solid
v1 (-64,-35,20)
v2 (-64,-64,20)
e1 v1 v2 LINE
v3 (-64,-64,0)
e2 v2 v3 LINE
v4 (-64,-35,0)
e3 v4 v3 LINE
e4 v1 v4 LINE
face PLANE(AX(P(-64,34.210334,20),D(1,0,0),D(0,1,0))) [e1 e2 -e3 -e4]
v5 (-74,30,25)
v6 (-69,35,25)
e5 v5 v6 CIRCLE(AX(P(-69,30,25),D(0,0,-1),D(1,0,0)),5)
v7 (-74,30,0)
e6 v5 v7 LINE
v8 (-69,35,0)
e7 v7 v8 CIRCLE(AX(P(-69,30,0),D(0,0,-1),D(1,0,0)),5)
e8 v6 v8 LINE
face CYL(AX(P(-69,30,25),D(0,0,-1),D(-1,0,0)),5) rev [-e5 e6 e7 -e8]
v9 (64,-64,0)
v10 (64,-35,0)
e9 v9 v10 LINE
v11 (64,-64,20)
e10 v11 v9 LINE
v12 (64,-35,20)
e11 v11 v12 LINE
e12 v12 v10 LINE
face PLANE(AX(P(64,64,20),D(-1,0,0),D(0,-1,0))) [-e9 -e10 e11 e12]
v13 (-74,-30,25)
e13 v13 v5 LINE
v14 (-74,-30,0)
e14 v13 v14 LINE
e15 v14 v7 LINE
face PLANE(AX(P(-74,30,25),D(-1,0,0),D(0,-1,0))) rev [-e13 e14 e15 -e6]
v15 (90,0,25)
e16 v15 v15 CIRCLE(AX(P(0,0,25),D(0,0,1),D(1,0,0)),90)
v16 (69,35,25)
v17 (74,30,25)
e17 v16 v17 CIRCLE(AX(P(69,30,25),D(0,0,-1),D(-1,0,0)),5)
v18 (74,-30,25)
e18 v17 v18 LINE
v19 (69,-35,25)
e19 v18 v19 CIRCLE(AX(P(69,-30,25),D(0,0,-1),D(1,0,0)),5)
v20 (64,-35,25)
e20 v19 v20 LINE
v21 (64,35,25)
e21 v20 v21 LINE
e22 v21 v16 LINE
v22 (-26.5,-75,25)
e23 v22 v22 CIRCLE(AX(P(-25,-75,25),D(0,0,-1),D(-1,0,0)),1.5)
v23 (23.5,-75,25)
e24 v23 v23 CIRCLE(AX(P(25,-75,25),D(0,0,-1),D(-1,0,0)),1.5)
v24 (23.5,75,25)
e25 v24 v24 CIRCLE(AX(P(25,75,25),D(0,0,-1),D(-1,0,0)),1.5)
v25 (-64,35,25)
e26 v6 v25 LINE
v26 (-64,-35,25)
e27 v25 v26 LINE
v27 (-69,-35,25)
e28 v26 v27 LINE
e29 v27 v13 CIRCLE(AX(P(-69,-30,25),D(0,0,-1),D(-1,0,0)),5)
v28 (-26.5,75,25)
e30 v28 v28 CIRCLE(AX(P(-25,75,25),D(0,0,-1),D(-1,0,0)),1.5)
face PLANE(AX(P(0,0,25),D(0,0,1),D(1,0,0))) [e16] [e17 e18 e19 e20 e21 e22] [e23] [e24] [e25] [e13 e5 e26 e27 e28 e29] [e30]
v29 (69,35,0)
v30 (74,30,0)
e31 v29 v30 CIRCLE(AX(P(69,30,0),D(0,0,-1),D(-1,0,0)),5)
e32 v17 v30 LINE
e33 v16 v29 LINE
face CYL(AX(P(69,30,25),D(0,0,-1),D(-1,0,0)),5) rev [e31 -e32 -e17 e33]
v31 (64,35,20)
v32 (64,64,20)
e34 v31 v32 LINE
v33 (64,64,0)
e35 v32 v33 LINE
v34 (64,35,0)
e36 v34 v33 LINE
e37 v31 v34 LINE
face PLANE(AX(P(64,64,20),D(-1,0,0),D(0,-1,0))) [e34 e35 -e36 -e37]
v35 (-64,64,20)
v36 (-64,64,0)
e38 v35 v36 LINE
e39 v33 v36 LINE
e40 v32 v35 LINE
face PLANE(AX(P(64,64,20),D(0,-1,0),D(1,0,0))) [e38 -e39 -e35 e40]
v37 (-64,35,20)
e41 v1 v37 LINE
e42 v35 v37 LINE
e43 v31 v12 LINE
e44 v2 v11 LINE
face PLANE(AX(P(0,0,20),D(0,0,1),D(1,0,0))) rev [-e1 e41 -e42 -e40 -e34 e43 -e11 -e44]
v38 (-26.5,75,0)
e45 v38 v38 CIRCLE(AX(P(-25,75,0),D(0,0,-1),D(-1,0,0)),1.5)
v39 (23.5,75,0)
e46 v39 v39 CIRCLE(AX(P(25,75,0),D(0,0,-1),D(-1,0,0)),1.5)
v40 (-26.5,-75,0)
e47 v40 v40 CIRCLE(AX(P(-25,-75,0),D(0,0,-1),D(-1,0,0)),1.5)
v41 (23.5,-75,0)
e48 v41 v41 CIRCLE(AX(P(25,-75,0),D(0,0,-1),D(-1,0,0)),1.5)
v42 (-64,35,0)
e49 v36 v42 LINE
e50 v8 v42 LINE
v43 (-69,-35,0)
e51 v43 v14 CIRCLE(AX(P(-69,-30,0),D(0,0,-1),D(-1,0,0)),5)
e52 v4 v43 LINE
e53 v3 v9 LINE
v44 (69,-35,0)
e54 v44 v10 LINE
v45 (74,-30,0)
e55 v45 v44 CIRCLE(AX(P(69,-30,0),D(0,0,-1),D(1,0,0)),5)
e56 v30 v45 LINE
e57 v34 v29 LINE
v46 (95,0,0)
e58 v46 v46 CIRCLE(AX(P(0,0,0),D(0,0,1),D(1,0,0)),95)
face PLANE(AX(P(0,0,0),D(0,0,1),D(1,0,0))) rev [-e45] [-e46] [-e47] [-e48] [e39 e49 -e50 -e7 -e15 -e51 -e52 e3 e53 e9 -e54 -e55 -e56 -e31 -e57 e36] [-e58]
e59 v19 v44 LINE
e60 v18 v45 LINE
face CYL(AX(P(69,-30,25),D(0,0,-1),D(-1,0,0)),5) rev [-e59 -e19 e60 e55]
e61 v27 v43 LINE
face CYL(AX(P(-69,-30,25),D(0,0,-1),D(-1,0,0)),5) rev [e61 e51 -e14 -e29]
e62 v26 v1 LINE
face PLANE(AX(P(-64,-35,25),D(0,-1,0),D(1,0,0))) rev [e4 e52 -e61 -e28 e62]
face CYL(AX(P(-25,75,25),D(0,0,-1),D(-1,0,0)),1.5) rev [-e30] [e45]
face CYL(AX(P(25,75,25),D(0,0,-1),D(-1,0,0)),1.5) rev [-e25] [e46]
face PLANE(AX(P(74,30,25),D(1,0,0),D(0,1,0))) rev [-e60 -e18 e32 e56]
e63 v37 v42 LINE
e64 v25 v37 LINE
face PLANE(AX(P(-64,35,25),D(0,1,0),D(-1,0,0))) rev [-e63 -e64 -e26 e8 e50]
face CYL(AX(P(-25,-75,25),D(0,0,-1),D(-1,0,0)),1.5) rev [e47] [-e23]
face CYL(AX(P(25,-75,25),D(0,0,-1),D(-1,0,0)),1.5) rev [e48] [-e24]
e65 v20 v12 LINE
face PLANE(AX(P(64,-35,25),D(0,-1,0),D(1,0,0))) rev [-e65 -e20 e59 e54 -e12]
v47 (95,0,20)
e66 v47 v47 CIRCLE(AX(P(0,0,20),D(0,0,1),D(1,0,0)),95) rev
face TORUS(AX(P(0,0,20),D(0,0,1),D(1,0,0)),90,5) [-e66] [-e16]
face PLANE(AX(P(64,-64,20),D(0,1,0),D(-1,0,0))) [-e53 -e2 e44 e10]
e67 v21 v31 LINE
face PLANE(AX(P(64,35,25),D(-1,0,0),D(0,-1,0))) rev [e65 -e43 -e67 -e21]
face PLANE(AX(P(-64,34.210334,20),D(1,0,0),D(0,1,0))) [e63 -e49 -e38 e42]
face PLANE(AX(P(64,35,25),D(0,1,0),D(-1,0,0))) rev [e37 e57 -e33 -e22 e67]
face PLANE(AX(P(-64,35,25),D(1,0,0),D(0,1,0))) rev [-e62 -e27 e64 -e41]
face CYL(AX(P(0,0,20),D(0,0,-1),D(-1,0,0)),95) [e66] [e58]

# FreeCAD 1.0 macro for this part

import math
import FreeCAD as App
import Part
import Sketcher
Q = App.Units.Quantity


def edges_at(feature, points):
    """Names of the edges that pass closest to the given points."""
    edges = feature.Shape.Edges
    near = lambda p: min(range(len(edges)), key=lambda i: edges[i].distToShape(Part.Vertex(*p))[0])
    return sorted({f"Edge{near(p) + 1}" for p in points})


def add_polygon(sketch, points):
    """Adds a closed chain of lines whose ends are joined by coincident constraints."""
    first, n = sketch.GeometryCount, len(points)
    for a, b in zip(points, points[1:] + points[:1]):
        sketch.addGeometry(Part.LineSegment(App.Vector(*a, 0), App.Vector(*b, 0)), False)
    for i in range(n):
        sketch.addConstraint(Sketcher.Constraint("Coincident", first + i, 2, first + (i + 1) % n, 1))

doc = App.newDocument("Part")
params = doc.addObject("Spreadsheet::Sheet", "Params")
for row, (alias, value) in enumerate([
    ("sketch1_diameter", "190 mm"),
    ("sketch1_width", "128 mm"),
    ("pad1_length", "20 mm"),
    ("sketch2_diameter", "190 mm"),
    ("pad2_length", "5 mm"),
    ("fillet_radius", "5 mm"),
    ("sketch3_diameter", "3 mm"),
    ("sketch4_radius", "5 mm"),
    ("sketch4_width", "5 mm"),
    ("sketch4_height", "70 mm"),
], start=1):
    params.set(f"A{row}", alias)
    params.set(f"B{row}", "=" + value)
    params.setAlias(f"B{row}", alias)

body = doc.addObject("PartDesign::Body", "Body")

# Sketch on XY plane
sketch1 = doc.addObject("Sketcher::SketchObject", "Sketch")
body.addObject(sketch1)
sketch1.AttachmentSupport = (doc.XY_Plane, [""])
sketch1.MapMode = "FlatFace"
sketch1.addGeometry(Part.Circle(App.Vector(0, 0, 0), App.Vector(0, 0, 1), 95), False)  # 0
add_polygon(sketch1, [(-64, 64), (64, 64), (64, -64), (-64, -64)])  # lines 1-4
sketch1.addConstraint([
    Sketcher.Constraint("Horizontal", 1),
    Sketcher.Constraint("Vertical", 2),
    Sketcher.Constraint("Horizontal", 3),
    Sketcher.Constraint("Vertical", 4),
    Sketcher.Constraint("Coincident", 0, 3, -1, 1),
    Sketcher.Constraint("Symmetric", 1, 2, 3, 2, -1, 1),
    Sketcher.Constraint("Equal", 3, 2),
    Sketcher.Constraint("Diameter", 0, Q("190 mm")),
    Sketcher.Constraint("DistanceX", 1, 1, 1, 2, Q("128 mm")),
])
sketch1.setExpression("Constraints[11]", "Params.sketch1_diameter")
sketch1.setExpression("Constraints[12]", "Params.sketch1_width")
pad1 = doc.addObject("PartDesign::Pad", "Pad")
body.addObject(pad1)
pad1.Profile = sketch1
pad1.setExpression("Length", "Params.pad1_length")

# Sketch on XY plane
sketch2 = doc.addObject("Sketcher::SketchObject", "Sketch001")
body.addObject(sketch2)
sketch2.AttachmentSupport = (doc.XY_Plane, [""])
sketch2.MapMode = "FlatFace"
sketch2.AttachmentOffset = App.Placement(App.Vector(0, 0, 20), App.Rotation())
sketch2.addGeometry(Part.Circle(App.Vector(0, 0, 0), App.Vector(0, 0, 1), 95), False)
sketch2.addConstraint([
    Sketcher.Constraint("Coincident", 0, 3, -1, 1),
    Sketcher.Constraint("Diameter", 0, Q("190 mm")),
])
sketch2.setExpression("Constraints[1]", "Params.sketch2_diameter")
pad2 = doc.addObject("PartDesign::Pad", "Pad001")
body.addObject(pad2)
pad2.Profile = sketch2
pad2.setExpression("Length", "Params.pad2_length")
doc.recompute()

fillet = doc.addObject("PartDesign::Fillet", "Fillet")
body.addObject(fillet)
fillet.Base = (pad2, edges_at(pad2, [(-95, 0, 25)]))
fillet.setExpression("Radius", "Params.fillet_radius")

# Sketch on XY plane
sketch3 = doc.addObject("Sketcher::SketchObject", "Sketch002")
body.addObject(sketch3)
sketch3.AttachmentSupport = (doc.XY_Plane, [""])
sketch3.MapMode = "FlatFace"
sketch3.addGeometry([
    Part.Circle(App.Vector(25, 75, 0), App.Vector(0, 0, 1), 1.5),
    Part.Circle(App.Vector(-25, 75, 0), App.Vector(0, 0, 1), 1.5),
    Part.Circle(App.Vector(-25, -75, 0), App.Vector(0, 0, 1), 1.5),
    Part.Circle(App.Vector(25, -75, 0), App.Vector(0, 0, 1), 1.5),
], False)
sketch3.addConstraint([
    Sketcher.Constraint("Equal", 0, 1),
    Sketcher.Constraint("Equal", 1, 2),
    Sketcher.Constraint("Equal", 2, 3),
    Sketcher.Constraint("Symmetric", 0, 3, 2, 3, -1, 1),
    Sketcher.Constraint("Symmetric", 1, 3, 3, 3, -1, 1),
    Sketcher.Constraint("Symmetric", 0, 3, 1, 3, -2),
    Sketcher.Constraint("Diameter", 0, Q("3 mm")),
    Sketcher.Constraint("DistanceX", -1, 1, 0, 3, Q("25 mm")),
    Sketcher.Constraint("DistanceY", -1, 1, 0, 3, Q("75 mm")),
])
sketch3.setExpression("Constraints[6]", "Params.sketch3_diameter")
pocket1 = doc.addObject("PartDesign::Pocket", "Pocket")
body.addObject(pocket1)
pocket1.Profile = sketch3
pocket1.Type = "ThroughAll"
pocket1.Reversed = True

# Sketch on XY plane
sketch4 = doc.addObject("Sketcher::SketchObject", "Sketch003")
body.addObject(sketch4)
sketch4.AttachmentSupport = (doc.XY_Plane, [""])
sketch4.MapMode = "FlatFace"
sketch4.AttachmentOffset = App.Placement(App.Vector(0, 0, 20), App.Rotation())
sketch4.addGeometry([
    Part.LineSegment(App.Vector(64, -35, 0), App.Vector(64, 35, 0)),  # 0
    Part.LineSegment(App.Vector(64, 35, 0), App.Vector(69, 35, 0)),  # 1
    Part.ArcOfCircle(Part.Circle(App.Vector(69, 30, 0), App.Vector(0, 0, 1), 5), math.radians(0), math.radians(90)),  # 2
    Part.LineSegment(App.Vector(74, 30, 0), App.Vector(74, -30, 0)),  # 3
    Part.ArcOfCircle(Part.Circle(App.Vector(69, -30, 0), App.Vector(0, 0, 1), 5), math.radians(-90), math.radians(0)),  # 4
    Part.LineSegment(App.Vector(69, -35, 0), App.Vector(64, -35, 0)),  # 5
    Part.LineSegment(App.Vector(-64, -35, 0), App.Vector(-69, -35, 0)),  # 6
    Part.ArcOfCircle(Part.Circle(App.Vector(-69, -30, 0), App.Vector(0, 0, 1), 5), math.radians(180), math.radians(270)),  # 7
    Part.LineSegment(App.Vector(-74, -30, 0), App.Vector(-74, 30, 0)),  # 8
    Part.ArcOfCircle(Part.Circle(App.Vector(-69, 30, 0), App.Vector(0, 0, 1), 5), math.radians(90), math.radians(180)),  # 9
    Part.LineSegment(App.Vector(-69, 35, 0), App.Vector(-64, 35, 0)),  # 10
    Part.LineSegment(App.Vector(-64, 35, 0), App.Vector(-64, -35, 0)),  # 11
], False)
sketch4.addConstraint([
    Sketcher.Constraint("Coincident", 0, 2, 1, 1),
    Sketcher.Constraint("Tangent", 1, 2, 2, 2),
    Sketcher.Constraint("Tangent", 2, 1, 3, 1),
    Sketcher.Constraint("Tangent", 3, 2, 4, 2),
    Sketcher.Constraint("Tangent", 4, 1, 5, 1),
    Sketcher.Constraint("Coincident", 5, 2, 0, 1),
    Sketcher.Constraint("Tangent", 6, 2, 7, 2),
    Sketcher.Constraint("Tangent", 7, 1, 8, 1),
    Sketcher.Constraint("Tangent", 8, 2, 9, 2),
    Sketcher.Constraint("Tangent", 9, 1, 10, 1),
    Sketcher.Constraint("Coincident", 10, 2, 11, 1),
    Sketcher.Constraint("Coincident", 11, 2, 6, 1),
    Sketcher.Constraint("Vertical", 0),
    Sketcher.Constraint("Horizontal", 1),
    Sketcher.Constraint("Vertical", 3),
    Sketcher.Constraint("Horizontal", 5),
    Sketcher.Constraint("Horizontal", 6),
    Sketcher.Constraint("Vertical", 8),
    Sketcher.Constraint("Horizontal", 10),
    Sketcher.Constraint("Vertical", 11),
    Sketcher.Constraint("Equal", 2, 4),
    Sketcher.Constraint("Equal", 4, 7),
    Sketcher.Constraint("Equal", 7, 9),
    Sketcher.Constraint("Symmetric", 2, 3, 7, 3, -1, 1),
    Sketcher.Constraint("Symmetric", 5, 2, 10, 2, -1, 1),
    Sketcher.Constraint("Horizontal", 4, 3, 7, 3),
    Sketcher.Constraint("Radius", 2, Q("5 mm")),
    Sketcher.Constraint("DistanceX", 1, 1, 1, 2, Q("5 mm")),
    Sketcher.Constraint("DistanceY", 0, 1, 0, 2, Q("70 mm")),
    Sketcher.Constraint("DistanceX", -1, 1, 2, 3, Q("69 mm")),
])
sketch4.setExpression("Constraints[26]", "Params.sketch4_radius")
sketch4.setExpression("Constraints[27]", "Params.sketch4_width")
sketch4.setExpression("Constraints[28]", "Params.sketch4_height")
pocket2 = doc.addObject("PartDesign::Pocket", "Pocket001")
body.addObject(pocket2)
pocket2.Profile = sketch4
pocket2.Type = "ThroughAll"
pocket2.Midplane = True

doc.recompute()
